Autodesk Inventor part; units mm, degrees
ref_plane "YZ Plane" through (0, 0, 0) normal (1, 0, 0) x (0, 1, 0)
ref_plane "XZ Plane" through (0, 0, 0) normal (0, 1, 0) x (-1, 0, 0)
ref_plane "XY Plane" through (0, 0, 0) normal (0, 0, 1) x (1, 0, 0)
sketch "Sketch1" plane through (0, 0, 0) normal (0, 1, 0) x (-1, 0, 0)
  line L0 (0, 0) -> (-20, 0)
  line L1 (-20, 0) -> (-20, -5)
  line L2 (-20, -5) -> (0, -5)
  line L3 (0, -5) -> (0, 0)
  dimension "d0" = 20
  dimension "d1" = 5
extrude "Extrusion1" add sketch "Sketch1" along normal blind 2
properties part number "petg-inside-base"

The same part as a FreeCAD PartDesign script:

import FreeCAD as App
import Part
import Sketcher

V = App.Vector

doc = App.newDocument("Part")
body = doc.addObject("PartDesign::Body", "Body")

# Sketch on XZ plane
sketch1 = body.newObject("Sketcher::SketchObject", "Sketch")
sketch1.AttachmentSupport = (doc.getObject("XZ_Plane"), [""])
sketch1.MapMode = "FlatFace"
sketch1.addGeometry([
    Part.LineSegment(V(0, -5, 0), V(0, 0, 0)),
    Part.LineSegment(V(0, 0, 0), V(20, 0, 0)),
    Part.LineSegment(V(20, 0, 0), V(20, -5, 0)),
    Part.LineSegment(V(20, -5, 0), V(0, -5, 0)),
], False)
sketch1.addConstraint([
    Sketcher.Constraint("Coincident", 0, 2, 1, 1),
    Sketcher.Constraint("Coincident", 1, 2, 2, 1),
    Sketcher.Constraint("Coincident", 2, 2, 3, 1),
    Sketcher.Constraint("Coincident", 3, 2, 0, 1),
    Sketcher.Constraint("Vertical", 0),
    Sketcher.Constraint("Horizontal", 1),
    Sketcher.Constraint("Vertical", 2),
    Sketcher.Constraint("Horizontal", 3),
    Sketcher.Constraint("Coincident", 0, 2, -1, 1),
    Sketcher.Constraint("DistanceX", 1, 1, 1, 2, 20.0),
    Sketcher.Constraint("DistanceY", 0, 1, 0, 2, 5.0),
])
pad1 = body.newObject("PartDesign::Pad", "Pad")
pad1.Profile = sketch1
pad1.Length = 2
pad1.Reversed = True

doc.recompute()
